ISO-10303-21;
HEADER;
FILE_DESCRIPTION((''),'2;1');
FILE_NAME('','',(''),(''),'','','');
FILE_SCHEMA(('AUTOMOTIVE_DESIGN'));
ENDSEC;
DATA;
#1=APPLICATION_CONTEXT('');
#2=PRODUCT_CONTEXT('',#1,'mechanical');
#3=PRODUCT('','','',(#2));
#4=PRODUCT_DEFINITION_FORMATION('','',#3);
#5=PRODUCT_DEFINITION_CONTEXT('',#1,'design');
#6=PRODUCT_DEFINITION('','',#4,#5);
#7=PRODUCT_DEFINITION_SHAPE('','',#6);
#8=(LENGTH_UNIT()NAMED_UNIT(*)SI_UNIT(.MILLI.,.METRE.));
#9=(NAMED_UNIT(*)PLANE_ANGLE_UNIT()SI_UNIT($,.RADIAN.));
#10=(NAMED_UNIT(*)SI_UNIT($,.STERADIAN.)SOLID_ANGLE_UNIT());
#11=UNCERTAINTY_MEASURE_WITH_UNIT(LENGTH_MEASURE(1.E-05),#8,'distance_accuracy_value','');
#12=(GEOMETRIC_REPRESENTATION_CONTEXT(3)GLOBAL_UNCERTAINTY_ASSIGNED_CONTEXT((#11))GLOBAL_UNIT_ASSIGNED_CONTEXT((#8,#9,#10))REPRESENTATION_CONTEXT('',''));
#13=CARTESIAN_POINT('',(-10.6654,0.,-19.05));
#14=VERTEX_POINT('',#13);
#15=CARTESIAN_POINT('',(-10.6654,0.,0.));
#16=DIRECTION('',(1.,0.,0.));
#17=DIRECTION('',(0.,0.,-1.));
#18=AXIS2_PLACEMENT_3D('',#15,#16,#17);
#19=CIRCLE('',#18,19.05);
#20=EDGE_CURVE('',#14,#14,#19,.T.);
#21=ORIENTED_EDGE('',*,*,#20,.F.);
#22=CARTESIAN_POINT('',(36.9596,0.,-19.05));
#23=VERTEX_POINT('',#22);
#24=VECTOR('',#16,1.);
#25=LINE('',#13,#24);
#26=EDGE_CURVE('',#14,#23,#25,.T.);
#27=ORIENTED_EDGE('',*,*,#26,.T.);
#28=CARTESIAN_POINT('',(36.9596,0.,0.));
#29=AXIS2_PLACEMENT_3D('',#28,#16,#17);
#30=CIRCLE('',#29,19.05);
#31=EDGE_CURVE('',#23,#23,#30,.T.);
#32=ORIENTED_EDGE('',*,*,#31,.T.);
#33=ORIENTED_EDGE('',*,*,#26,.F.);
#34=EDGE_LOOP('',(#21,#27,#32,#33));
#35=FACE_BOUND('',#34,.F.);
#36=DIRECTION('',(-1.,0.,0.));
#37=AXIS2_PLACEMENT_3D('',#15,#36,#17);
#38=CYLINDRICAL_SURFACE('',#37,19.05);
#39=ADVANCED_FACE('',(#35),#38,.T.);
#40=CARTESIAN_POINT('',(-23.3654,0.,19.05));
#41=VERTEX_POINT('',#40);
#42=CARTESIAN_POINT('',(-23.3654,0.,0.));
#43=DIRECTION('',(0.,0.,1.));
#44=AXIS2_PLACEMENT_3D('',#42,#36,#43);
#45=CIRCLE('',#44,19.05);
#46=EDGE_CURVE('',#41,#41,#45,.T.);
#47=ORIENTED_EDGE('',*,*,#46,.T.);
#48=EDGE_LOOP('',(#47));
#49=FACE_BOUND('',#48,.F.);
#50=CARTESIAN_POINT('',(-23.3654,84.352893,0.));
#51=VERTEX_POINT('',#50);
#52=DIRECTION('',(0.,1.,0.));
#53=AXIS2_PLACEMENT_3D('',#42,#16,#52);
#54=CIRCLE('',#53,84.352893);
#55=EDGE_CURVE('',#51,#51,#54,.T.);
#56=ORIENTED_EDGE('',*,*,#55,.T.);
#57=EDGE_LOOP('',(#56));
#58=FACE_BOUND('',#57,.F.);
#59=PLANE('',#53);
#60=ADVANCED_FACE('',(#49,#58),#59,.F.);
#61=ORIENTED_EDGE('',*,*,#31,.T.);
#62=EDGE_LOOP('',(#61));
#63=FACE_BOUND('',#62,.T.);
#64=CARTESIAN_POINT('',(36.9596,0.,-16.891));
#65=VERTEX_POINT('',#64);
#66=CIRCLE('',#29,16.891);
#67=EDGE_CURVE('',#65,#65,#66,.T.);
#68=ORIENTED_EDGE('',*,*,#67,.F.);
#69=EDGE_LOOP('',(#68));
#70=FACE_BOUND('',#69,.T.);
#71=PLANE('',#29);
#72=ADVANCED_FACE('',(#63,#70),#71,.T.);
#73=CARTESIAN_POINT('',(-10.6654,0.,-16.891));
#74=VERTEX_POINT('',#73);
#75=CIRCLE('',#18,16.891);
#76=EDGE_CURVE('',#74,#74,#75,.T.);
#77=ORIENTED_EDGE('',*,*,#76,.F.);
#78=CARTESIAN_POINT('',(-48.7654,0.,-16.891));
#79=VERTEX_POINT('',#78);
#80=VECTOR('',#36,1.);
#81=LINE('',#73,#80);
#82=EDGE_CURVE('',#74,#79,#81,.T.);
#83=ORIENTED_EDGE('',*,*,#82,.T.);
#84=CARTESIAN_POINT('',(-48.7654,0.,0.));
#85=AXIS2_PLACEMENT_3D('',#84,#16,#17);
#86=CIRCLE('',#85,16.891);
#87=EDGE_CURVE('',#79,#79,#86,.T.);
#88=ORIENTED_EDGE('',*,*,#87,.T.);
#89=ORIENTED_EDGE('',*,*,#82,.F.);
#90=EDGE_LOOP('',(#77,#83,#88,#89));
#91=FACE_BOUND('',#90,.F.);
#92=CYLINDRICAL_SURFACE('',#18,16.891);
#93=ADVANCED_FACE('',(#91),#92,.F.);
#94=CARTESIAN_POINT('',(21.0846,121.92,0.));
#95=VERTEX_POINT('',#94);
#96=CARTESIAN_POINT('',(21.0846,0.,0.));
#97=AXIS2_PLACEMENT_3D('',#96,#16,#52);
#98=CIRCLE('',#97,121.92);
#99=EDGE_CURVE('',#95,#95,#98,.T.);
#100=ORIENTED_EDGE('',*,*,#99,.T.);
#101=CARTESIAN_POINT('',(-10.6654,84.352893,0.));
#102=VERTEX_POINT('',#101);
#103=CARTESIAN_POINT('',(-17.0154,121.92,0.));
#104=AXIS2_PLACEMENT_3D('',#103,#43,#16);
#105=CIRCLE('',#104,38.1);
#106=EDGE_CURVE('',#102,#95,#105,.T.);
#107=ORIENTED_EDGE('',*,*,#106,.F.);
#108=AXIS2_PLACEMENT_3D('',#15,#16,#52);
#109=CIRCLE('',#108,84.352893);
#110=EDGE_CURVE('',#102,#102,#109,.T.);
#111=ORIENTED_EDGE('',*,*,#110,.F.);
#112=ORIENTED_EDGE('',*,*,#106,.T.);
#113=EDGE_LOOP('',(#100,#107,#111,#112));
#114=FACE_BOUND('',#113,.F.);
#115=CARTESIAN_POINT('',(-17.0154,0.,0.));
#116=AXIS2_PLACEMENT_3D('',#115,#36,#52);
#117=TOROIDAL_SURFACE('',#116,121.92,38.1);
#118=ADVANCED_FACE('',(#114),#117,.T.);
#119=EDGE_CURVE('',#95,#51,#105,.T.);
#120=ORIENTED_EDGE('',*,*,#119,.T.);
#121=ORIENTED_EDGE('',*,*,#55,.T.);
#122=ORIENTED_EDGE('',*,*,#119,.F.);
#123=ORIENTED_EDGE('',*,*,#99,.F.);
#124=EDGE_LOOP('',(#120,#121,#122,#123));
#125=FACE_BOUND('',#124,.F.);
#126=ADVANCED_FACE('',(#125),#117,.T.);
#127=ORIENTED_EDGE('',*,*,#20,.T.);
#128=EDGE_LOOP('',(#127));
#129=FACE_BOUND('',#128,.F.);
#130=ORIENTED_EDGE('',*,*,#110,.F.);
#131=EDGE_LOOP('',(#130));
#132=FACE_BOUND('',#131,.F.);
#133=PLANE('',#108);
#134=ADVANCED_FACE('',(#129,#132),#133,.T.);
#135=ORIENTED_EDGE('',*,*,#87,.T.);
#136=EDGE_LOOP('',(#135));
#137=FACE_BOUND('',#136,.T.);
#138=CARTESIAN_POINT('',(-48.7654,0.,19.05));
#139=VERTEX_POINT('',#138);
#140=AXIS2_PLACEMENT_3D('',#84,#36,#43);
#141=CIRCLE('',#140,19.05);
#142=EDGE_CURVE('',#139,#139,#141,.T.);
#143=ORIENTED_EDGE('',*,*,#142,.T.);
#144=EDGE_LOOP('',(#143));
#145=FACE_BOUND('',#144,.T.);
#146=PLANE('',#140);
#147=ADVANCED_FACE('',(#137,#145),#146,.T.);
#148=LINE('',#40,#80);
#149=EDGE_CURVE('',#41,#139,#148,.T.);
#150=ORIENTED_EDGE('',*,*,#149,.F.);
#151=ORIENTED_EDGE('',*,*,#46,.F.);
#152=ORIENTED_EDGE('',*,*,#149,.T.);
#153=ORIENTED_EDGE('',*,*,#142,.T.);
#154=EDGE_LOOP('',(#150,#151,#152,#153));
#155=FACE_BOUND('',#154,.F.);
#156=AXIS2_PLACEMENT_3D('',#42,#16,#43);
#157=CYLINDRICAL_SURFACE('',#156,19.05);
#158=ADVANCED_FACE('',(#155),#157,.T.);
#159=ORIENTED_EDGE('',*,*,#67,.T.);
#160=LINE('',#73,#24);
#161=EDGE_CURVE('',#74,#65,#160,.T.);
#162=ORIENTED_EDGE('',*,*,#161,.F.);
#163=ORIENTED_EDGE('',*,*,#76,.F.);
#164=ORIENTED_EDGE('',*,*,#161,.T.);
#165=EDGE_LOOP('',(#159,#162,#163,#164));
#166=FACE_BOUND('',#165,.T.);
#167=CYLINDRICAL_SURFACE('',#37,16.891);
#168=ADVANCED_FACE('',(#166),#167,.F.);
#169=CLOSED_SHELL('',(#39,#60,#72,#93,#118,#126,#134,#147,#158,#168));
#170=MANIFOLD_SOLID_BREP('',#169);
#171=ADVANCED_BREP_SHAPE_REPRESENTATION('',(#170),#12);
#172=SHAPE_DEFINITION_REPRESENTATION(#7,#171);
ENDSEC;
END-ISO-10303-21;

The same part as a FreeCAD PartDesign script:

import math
import FreeCAD as App
import Part
import Sketcher
Q = App.Units.Quantity

doc = App.newDocument("Part")
body = doc.addObject("PartDesign::Body", "Body")

# Sketch on XY plane
sketch1 = body.newObject("Sketcher::SketchObject", "Sketch")
sketch1.AttachmentSupport = (doc.getObject("XY_Plane"), [""])
sketch1.MapMode = "FlatFace"
sketch1.addGeometry([
    Part.LineSegment(App.Vector(-23, 84, 0), App.Vector(-23, 0, 0)),
    Part.LineSegment(App.Vector(-23, 0, 0), App.Vector(-11, 0, 0)),
    Part.LineSegment(App.Vector(-11, 0, 0), App.Vector(-11, 84, 0)),
    Part.ArcOfCircle(Part.Circle(App.Vector(-17, 122, 0), App.Vector(0, 0, 1), 38), math.radians(-80), math.radians(260)),
], False)
sketch1.addConstraint([
    Sketcher.Constraint("Coincident", 0, 2, 1, 1),
    Sketcher.Constraint("Coincident", 1, 2, 2, 1),
    Sketcher.Constraint("Coincident", 2, 2, 3, 1),
    Sketcher.Constraint("Coincident", 3, 2, 0, 1),
    Sketcher.Constraint("Vertical", 0),
    Sketcher.Constraint("Horizontal", 1),
    Sketcher.Constraint("Vertical", 2),
    Sketcher.Constraint("PointOnObject", 0, 2, -1),
    Sketcher.Constraint("Horizontal", 2, 2, 3, 2),
    Sketcher.Constraint("Radius", 3, Q("1.5 in")),
    Sketcher.Constraint("DistanceX", 1, 1, 1, 2, Q("0.5 in")),
    Sketcher.Constraint("DistanceY", -1, 1, 3, 3, Q("4.8 in")),
    Sketcher.Constraint("DistanceX", 3, 3, -1, 1, Q("0.6699 in")),
])
revolution = body.newObject("PartDesign::Revolution", "Revolution")
revolution.Profile = sketch1
revolution.ReferenceAxis = (sketch1, ["H_Axis"])
revolution.Angle = 360

# Sketch on YZ plane
sketch2 = body.newObject("Sketcher::SketchObject", "Sketch001")
sketch2.AttachmentSupport = (doc.getObject("YZ_Plane"), [""])
sketch2.MapMode = "FlatFace"
sketch2.AttachmentOffset = App.Placement(App.Vector(0, 0, -0.9198976 * 25.4), App.Rotation())
sketch2.addGeometry(Part.Circle(App.Vector(0, 0, 0), App.Vector(0, 0, 1), 19), False)
sketch2.addConstraint([
    Sketcher.Constraint("Coincident", 0, 3, -1, 1),
    Sketcher.Constraint("Diameter", 0, Q("1.5 in")),
])
pad1 = body.newObject("PartDesign::Pad", "Pad")
pad1.Profile = sketch2
pad1.Length = Q("1 in")
pad1.Reversed = True

# Sketch on YZ plane
sketch3 = body.newObject("Sketcher::SketchObject", "Sketch002")
sketch3.AttachmentSupport = (doc.getObject("YZ_Plane"), [""])
sketch3.MapMode = "FlatFace"
sketch3.AttachmentOffset = App.Placement(App.Vector(0, 0, -1.9198976 * 25.4), App.Rotation())
sketch3.addGeometry(Part.Circle(App.Vector(0, 0, 0), App.Vector(0, 0, 1), 11), False)
sketch3.addConstraint([
    Sketcher.Constraint("Coincident", 0, 3, -1, 1),
    Sketcher.Constraint("Diameter", 0, Q("0.875 in")),
])
pocket1 = body.newObject("PartDesign::Pocket", "Pocket")
pocket1.Profile = sketch3
pocket1.Length = Q("1 in")
pocket1.Reversed = True

# Sketch on YZ plane
sketch4 = body.newObject("Sketcher::SketchObject", "Sketch003")
sketch4.AttachmentSupport = (doc.getObject("YZ_Plane"), [""])
sketch4.MapMode = "FlatFace"
sketch4.AttachmentOffset = App.Placement(App.Vector(0, 0, -0.4198976 * 25.4), App.Rotation())
sketch4.addGeometry([
    Part.Circle(App.Vector(0, 0, 0), App.Vector(0, 0, 1), 19),
    Part.Circle(App.Vector(0, 0, 0), App.Vector(0, 0, 1), 17),
], False)
sketch4.addConstraint([
    Sketcher.Constraint("Coincident", 0, 3, -1, 1),
    Sketcher.Constraint("Coincident", 1, 3, -1, 1),
    Sketcher.Constraint("Diameter", 0, Q("1.5 in")),
    Sketcher.Constraint("Diameter", 1, Q("1.33 in")),
])
pad2 = body.newObject("PartDesign::Pad", "Pad001")
pad2.Profile = sketch4
pad2.Length = Q("1.875 in")

# Sketch on YZ plane
sketch5 = body.newObject("Sketcher::SketchObject", "Sketch004")
sketch5.AttachmentSupport = (doc.getObject("YZ_Plane"), [""])
sketch5.MapMode = "FlatFace"
sketch5.AttachmentOffset = App.Placement(App.Vector(0, 0, -0.4198976 * 25.4), App.Rotation())
sketch5.addGeometry(Part.Circle(App.Vector(0, 0, 0), App.Vector(0, 0, 1), 17), False)
sketch5.addConstraint([
    Sketcher.Constraint("Coincident", 0, 3, -1, 1),
    Sketcher.Constraint("Diameter", 0, Q("1.33 in")),
])
pocket2 = body.newObject("PartDesign::Pocket", "Pocket001")
pocket2.Profile = sketch5
pocket2.Length = Q("3 in")

doc.recompute()
